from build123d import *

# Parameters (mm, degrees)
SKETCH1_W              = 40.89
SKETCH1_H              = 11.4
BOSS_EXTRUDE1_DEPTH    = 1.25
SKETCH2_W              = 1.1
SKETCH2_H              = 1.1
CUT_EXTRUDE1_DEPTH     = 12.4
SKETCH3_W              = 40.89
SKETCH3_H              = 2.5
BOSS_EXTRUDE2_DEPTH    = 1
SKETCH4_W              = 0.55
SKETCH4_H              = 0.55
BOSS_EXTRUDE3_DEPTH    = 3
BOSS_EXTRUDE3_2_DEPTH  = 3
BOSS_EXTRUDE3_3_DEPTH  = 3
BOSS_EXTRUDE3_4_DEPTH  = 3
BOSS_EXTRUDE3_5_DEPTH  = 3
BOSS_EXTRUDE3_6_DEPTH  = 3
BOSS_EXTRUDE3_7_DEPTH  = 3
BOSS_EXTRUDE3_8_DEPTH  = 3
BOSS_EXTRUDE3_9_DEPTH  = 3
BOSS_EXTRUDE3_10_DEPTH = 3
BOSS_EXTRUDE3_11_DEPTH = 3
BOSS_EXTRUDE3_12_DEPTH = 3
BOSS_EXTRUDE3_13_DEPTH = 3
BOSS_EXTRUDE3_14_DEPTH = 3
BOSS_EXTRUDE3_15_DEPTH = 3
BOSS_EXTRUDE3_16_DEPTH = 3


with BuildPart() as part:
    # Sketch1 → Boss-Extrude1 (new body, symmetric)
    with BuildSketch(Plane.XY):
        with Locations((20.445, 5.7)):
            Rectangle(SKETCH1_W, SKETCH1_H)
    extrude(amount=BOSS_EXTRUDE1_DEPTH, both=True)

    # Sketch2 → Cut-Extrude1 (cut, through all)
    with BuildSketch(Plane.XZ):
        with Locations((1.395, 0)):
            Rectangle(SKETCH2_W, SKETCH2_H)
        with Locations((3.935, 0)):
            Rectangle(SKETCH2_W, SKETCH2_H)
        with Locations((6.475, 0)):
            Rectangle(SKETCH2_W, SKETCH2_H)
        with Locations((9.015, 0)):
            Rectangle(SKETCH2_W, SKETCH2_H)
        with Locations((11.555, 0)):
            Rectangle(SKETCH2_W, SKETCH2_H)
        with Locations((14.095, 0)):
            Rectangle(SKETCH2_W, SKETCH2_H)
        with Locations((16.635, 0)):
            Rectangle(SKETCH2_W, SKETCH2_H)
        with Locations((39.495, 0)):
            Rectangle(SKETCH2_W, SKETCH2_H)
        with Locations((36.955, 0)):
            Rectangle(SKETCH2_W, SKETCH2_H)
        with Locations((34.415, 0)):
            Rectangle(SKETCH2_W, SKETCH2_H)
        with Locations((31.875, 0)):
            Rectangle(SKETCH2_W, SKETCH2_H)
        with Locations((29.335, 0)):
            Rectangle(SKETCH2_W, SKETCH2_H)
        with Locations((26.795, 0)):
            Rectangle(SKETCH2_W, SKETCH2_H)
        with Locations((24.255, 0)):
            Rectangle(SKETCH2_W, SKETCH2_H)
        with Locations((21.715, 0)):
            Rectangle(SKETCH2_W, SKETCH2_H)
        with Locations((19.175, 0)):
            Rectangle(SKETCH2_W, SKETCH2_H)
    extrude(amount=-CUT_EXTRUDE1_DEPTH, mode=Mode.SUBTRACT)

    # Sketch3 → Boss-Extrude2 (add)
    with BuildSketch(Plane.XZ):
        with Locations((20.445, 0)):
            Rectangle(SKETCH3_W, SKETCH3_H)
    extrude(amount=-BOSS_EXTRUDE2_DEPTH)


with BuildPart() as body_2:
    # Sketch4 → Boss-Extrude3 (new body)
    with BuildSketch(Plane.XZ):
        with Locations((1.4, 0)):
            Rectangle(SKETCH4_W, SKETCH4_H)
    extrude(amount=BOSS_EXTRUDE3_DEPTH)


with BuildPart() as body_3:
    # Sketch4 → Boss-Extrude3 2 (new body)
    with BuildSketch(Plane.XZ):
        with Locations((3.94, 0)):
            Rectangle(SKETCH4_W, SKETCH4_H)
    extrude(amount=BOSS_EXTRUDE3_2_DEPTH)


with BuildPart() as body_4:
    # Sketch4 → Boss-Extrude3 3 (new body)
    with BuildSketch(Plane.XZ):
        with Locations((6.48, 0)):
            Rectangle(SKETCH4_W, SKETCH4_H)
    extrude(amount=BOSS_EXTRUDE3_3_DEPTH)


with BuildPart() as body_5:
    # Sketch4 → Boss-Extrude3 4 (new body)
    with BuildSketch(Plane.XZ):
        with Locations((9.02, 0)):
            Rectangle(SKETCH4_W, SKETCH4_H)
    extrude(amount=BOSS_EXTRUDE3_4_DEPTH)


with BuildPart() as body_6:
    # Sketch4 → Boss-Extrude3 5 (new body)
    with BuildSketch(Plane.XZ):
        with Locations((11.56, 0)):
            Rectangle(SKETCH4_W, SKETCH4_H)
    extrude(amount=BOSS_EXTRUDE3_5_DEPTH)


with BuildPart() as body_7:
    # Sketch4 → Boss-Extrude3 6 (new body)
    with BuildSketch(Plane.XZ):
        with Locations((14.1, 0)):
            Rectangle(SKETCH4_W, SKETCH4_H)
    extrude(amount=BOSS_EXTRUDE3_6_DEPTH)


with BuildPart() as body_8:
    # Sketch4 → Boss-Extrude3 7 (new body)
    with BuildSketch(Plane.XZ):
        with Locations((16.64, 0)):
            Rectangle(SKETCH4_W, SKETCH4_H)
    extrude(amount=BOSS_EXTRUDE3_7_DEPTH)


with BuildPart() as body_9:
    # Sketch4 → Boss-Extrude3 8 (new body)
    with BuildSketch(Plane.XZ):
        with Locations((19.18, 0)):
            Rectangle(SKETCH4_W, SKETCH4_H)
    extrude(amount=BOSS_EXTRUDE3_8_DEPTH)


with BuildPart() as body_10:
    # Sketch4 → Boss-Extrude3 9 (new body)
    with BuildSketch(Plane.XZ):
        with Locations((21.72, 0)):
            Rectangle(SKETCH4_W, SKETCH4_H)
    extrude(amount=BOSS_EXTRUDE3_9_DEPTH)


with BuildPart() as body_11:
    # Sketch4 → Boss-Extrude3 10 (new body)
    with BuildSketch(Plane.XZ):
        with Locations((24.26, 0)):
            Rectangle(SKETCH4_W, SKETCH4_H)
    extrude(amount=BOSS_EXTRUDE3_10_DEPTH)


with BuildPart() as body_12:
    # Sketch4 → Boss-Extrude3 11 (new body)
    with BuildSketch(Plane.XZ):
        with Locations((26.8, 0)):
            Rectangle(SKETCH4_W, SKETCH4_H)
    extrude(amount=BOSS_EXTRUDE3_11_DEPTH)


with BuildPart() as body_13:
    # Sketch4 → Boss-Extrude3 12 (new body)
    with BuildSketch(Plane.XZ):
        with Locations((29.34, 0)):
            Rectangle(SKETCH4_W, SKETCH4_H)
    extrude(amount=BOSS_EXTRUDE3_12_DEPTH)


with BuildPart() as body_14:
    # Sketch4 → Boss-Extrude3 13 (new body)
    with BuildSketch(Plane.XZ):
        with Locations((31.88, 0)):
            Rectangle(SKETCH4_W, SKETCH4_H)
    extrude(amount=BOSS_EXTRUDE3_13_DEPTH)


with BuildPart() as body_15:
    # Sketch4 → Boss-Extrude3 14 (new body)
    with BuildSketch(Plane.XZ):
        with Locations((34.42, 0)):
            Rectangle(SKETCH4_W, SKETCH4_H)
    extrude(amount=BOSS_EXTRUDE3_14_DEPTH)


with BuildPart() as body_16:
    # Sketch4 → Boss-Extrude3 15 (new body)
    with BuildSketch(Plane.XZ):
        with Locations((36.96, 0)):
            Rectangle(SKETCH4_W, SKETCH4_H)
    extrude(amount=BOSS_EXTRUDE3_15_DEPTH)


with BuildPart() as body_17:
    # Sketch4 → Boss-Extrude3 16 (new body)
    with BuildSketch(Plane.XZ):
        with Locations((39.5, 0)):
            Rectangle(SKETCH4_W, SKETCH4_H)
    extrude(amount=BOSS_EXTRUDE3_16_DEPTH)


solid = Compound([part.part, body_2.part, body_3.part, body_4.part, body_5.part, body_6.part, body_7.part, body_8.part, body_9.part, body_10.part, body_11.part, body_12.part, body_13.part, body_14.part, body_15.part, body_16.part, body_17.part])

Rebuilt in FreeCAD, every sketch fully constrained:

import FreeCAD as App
import Part
import Sketcher

doc = App.newDocument("Part")
body = doc.addObject("PartDesign::Body", "Body")

sketch1 = body.newObject("Sketcher::SketchObject", "Sketch")
sketch1.AttachmentSupport = (doc.getObject("XY_Plane"), [""])
sketch1.MapMode = "FlatFace"
sketch1.addGeometry(Part.LineSegment(App.Vector(0, 11, 0), App.Vector(0, 0, 0)), False)
sketch1.addGeometry(Part.LineSegment(App.Vector(0, 0, 0), App.Vector(41, 0, 0)), False)
sketch1.addGeometry(Part.LineSegment(App.Vector(41, 0, 0), App.Vector(41, 11, 0)), False)
sketch1.addGeometry(Part.LineSegment(App.Vector(41, 11, 0), App.Vector(0, 11, 0)), False)
sketch1.addConstraint(Sketcher.Constraint("Coincident", 0, 2, 1, 1))
sketch1.addConstraint(Sketcher.Constraint("Coincident", 1, 2, 2, 1))
sketch1.addConstraint(Sketcher.Constraint("Coincident", 2, 2, 3, 1))
sketch1.addConstraint(Sketcher.Constraint("Coincident", 3, 2, 0, 1))
sketch1.addConstraint(Sketcher.Constraint("Vertical", 0))
sketch1.addConstraint(Sketcher.Constraint("Horizontal", 1))
sketch1.addConstraint(Sketcher.Constraint("Vertical", 2))
sketch1.addConstraint(Sketcher.Constraint("Horizontal", 3))
sketch1.addConstraint(Sketcher.Constraint("Coincident", 0, 2, -1, 1))
sketch1.addConstraint(Sketcher.Constraint("DistanceY", 0, 2, 0, 1, 11.4))
sketch1.addConstraint(Sketcher.Constraint("DistanceX", 1, 1, 1, 2, 40.89))
pad1 = body.newObject("PartDesign::Pad", "Pad")
pad1.Profile = sketch1
pad1.Length = 2.5
pad1.Midplane = True

sketch2 = body.newObject("Sketcher::SketchObject", "Sketch001")
sketch2.AttachmentSupport = (doc.getObject("XZ_Plane"), [""])
sketch2.MapMode = "FlatFace"
sketch2.addGeometry(Part.LineSegment(App.Vector(0.8, 0.6, 0), App.Vector(0.8, -0.6, 0)), False)
sketch2.addGeometry(Part.LineSegment(App.Vector(0.8, -0.6, 0), App.Vector(1.9, -0.6, 0)), False)
sketch2.addGeometry(Part.LineSegment(App.Vector(1.9, -0.6, 0), App.Vector(1.9, 0.6, 0)), False)
sketch2.addGeometry(Part.LineSegment(App.Vector(1.9, 0.6, 0), App.Vector(0.8, 0.6, 0)), False)
sketch2.addGeometry(Part.LineSegment(App.Vector(3.4, 0.6, 0), App.Vector(3.4, -0.6, 0)), False)
sketch2.addGeometry(Part.LineSegment(App.Vector(3.4, -0.6, 0), App.Vector(4.5, -0.6, 0)), False)
sketch2.addGeometry(Part.LineSegment(App.Vector(4.5, -0.6, 0), App.Vector(4.5, 0.6, 0)), False)
sketch2.addGeometry(Part.LineSegment(App.Vector(4.5, 0.6, 0), App.Vector(3.4, 0.6, 0)), False)
sketch2.addGeometry(Part.LineSegment(App.Vector(5.9, 0.6, 0), App.Vector(5.9, -0.6, 0)), False)
sketch2.addGeometry(Part.LineSegment(App.Vector(5.9, -0.6, 0), App.Vector(7, -0.6, 0)), False)
sketch2.addGeometry(Part.LineSegment(App.Vector(7, -0.6, 0), App.Vector(7, 0.6, 0)), False)
sketch2.addGeometry(Part.LineSegment(App.Vector(7, 0.6, 0), App.Vector(5.9, 0.6, 0)), False)
sketch2.addGeometry(Part.LineSegment(App.Vector(8.5, 0.6, 0), App.Vector(8.5, -0.6, 0)), False)
sketch2.addGeometry(Part.LineSegment(App.Vector(8.5, -0.6, 0), App.Vector(9.6, -0.6, 0)), False)
sketch2.addGeometry(Part.LineSegment(App.Vector(9.6, -0.6, 0), App.Vector(9.6, 0.6, 0)), False)
sketch2.addGeometry(Part.LineSegment(App.Vector(9.6, 0.6, 0), App.Vector(8.5, 0.6, 0)), False)
sketch2.addGeometry(Part.LineSegment(App.Vector(11, 0.6, 0), App.Vector(11, -0.6, 0)), False)
sketch2.addGeometry(Part.LineSegment(App.Vector(11, -0.6, 0), App.Vector(12.1, -0.6, 0)), False)
sketch2.addGeometry(Part.LineSegment(App.Vector(12.1, -0.6, 0), App.Vector(12.1, 0.6, 0)), False)
sketch2.addGeometry(Part.LineSegment(App.Vector(12.1, 0.6, 0), App.Vector(11, 0.6, 0)), False)
sketch2.addGeometry(Part.LineSegment(App.Vector(13.5, 0.6, 0), App.Vector(13.5, -0.6, 0)), False)
sketch2.addGeometry(Part.LineSegment(App.Vector(13.5, -0.6, 0), App.Vector(14.6, -0.6, 0)), False)
sketch2.addGeometry(Part.LineSegment(App.Vector(14.6, -0.6, 0), App.Vector(14.6, 0.6, 0)), False)
sketch2.addGeometry(Part.LineSegment(App.Vector(14.6, 0.6, 0), App.Vector(13.5, 0.6, 0)), False)
sketch2.addGeometry(Part.LineSegment(App.Vector(16.1, 0.6, 0), App.Vector(16.1, -0.6, 0)), False)
sketch2.addGeometry(Part.LineSegment(App.Vector(16.1, -0.6, 0), App.Vector(17.2, -0.6, 0)), False)
sketch2.addGeometry(Part.LineSegment(App.Vector(17.2, -0.6, 0), App.Vector(17.2, 0.6, 0)), False)
sketch2.addGeometry(Part.LineSegment(App.Vector(17.2, 0.6, 0), App.Vector(16.1, 0.6, 0)), False)
sketch2.addGeometry(Part.LineSegment(App.Vector(38.9, 0.6, 0), App.Vector(38.9, -0.6, 0)), False)
sketch2.addGeometry(Part.LineSegment(App.Vector(38.9, -0.6, 0), App.Vector(40, -0.6, 0)), False)
sketch2.addGeometry(Part.LineSegment(App.Vector(40, -0.6, 0), App.Vector(40, 0.6, 0)), False)
sketch2.addGeometry(Part.LineSegment(App.Vector(40, 0.6, 0), App.Vector(38.9, 0.6, 0)), False)
sketch2.addGeometry(Part.LineSegment(App.Vector(36.4, 0.6, 0), App.Vector(36.4, -0.6, 0)), False)
sketch2.addGeometry(Part.LineSegment(App.Vector(36.4, -0.6, 0), App.Vector(37.5, -0.6, 0)), False)
sketch2.addGeometry(Part.LineSegment(App.Vector(37.5, -0.6, 0), App.Vector(37.5, 0.6, 0)), False)
sketch2.addGeometry(Part.LineSegment(App.Vector(37.5, 0.6, 0), App.Vector(36.4, 0.6, 0)), False)
sketch2.addGeometry(Part.LineSegment(App.Vector(33.9, 0.6, 0), App.Vector(33.9, -0.6, 0)), False)
sketch2.addGeometry(Part.LineSegment(App.Vector(33.9, -0.6, 0), App.Vector(35, -0.6, 0)), False)
sketch2.addGeometry(Part.LineSegment(App.Vector(35, -0.6, 0), App.Vector(35, 0.6, 0)), False)
sketch2.addGeometry(Part.LineSegment(App.Vector(35, 0.6, 0), App.Vector(33.9, 0.6, 0)), False)
sketch2.addGeometry(Part.LineSegment(App.Vector(31.3, 0.6, 0), App.Vector(31.3, -0.6, 0)), False)
sketch2.addGeometry(Part.LineSegment(App.Vector(31.3, -0.6, 0), App.Vector(32.4, -0.6, 0)), False)
sketch2.addGeometry(Part.LineSegment(App.Vector(32.4, -0.6, 0), App.Vector(32.4, 0.6, 0)), False)
sketch2.addGeometry(Part.LineSegment(App.Vector(32.4, 0.6, 0), App.Vector(31.3, 0.6, 0)), False)
sketch2.addGeometry(Part.LineSegment(App.Vector(28.8, 0.6, 0), App.Vector(28.8, -0.6, 0)), False)
sketch2.addGeometry(Part.LineSegment(App.Vector(28.8, -0.6, 0), App.Vector(29.9, -0.6, 0)), False)
sketch2.addGeometry(Part.LineSegment(App.Vector(29.9, -0.6, 0), App.Vector(29.9, 0.6, 0)), False)
sketch2.addGeometry(Part.LineSegment(App.Vector(29.9, 0.6, 0), App.Vector(28.8, 0.6, 0)), False)
sketch2.addGeometry(Part.LineSegment(App.Vector(26.2, 0.6, 0), App.Vector(26.2, -0.6, 0)), False)
sketch2.addGeometry(Part.LineSegment(App.Vector(26.2, -0.6, 0), App.Vector(27.3, -0.6, 0)), False)
sketch2.addGeometry(Part.LineSegment(App.Vector(27.3, -0.6, 0), App.Vector(27.3, 0.6, 0)), False)
sketch2.addGeometry(Part.LineSegment(App.Vector(27.3, 0.6, 0), App.Vector(26.2, 0.6, 0)), False)
sketch2.addGeometry(Part.LineSegment(App.Vector(23.7, 0.6, 0), App.Vector(23.7, -0.6, 0)), False)
sketch2.addGeometry(Part.LineSegment(App.Vector(23.7, -0.6, 0), App.Vector(24.8, -0.6, 0)), False)
sketch2.addGeometry(Part.LineSegment(App.Vector(24.8, -0.6, 0), App.Vector(24.8, 0.6, 0)), False)
sketch2.addGeometry(Part.LineSegment(App.Vector(24.8, 0.6, 0), App.Vector(23.7, 0.6, 0)), False)
sketch2.addGeometry(Part.LineSegment(App.Vector(21.2, 0.6, 0), App.Vector(21.2, -0.6, 0)), False)
sketch2.addGeometry(Part.LineSegment(App.Vector(21.2, -0.6, 0), App.Vector(22.3, -0.6, 0)), False)
sketch2.addGeometry(Part.LineSegment(App.Vector(22.3, -0.6, 0), App.Vector(22.3, 0.6, 0)), False)
sketch2.addGeometry(Part.LineSegment(App.Vector(22.3, 0.6, 0), App.Vector(21.2, 0.6, 0)), False)
sketch2.addGeometry(Part.LineSegment(App.Vector(18.6, 0.6, 0), App.Vector(18.6, -0.6, 0)), False)
sketch2.addGeometry(Part.LineSegment(App.Vector(18.6, -0.6, 0), App.Vector(19.7, -0.6, 0)), False)
sketch2.addGeometry(Part.LineSegment(App.Vector(19.7, -0.6, 0), App.Vector(19.7, 0.6, 0)), False)
sketch2.addGeometry(Part.LineSegment(App.Vector(19.7, 0.6, 0), App.Vector(18.6, 0.6, 0)), False)
sketch2.addConstraint(Sketcher.Constraint("Coincident", 0, 2, 1, 1))
sketch2.addConstraint(Sketcher.Constraint("Coincident", 1, 2, 2, 1))
sketch2.addConstraint(Sketcher.Constraint("Coincident", 2, 2, 3, 1))
sketch2.addConstraint(Sketcher.Constraint("Coincident", 3, 2, 0, 1))
sketch2.addConstraint(Sketcher.Constraint("Coincident", 4, 2, 5, 1))
sketch2.addConstraint(Sketcher.Constraint("Coincident", 5, 2, 6, 1))
sketch2.addConstraint(Sketcher.Constraint("Coincident", 6, 2, 7, 1))
sketch2.addConstraint(Sketcher.Constraint("Coincident", 7, 2, 4, 1))
sketch2.addConstraint(Sketcher.Constraint("Coincident", 8, 2, 9, 1))
sketch2.addConstraint(Sketcher.Constraint("Coincident", 9, 2, 10, 1))
sketch2.addConstraint(Sketcher.Constraint("Coincident", 10, 2, 11, 1))
sketch2.addConstraint(Sketcher.Constraint("Coincident", 11, 2, 8, 1))
sketch2.addConstraint(Sketcher.Constraint("Coincident", 12, 2, 13, 1))
sketch2.addConstraint(Sketcher.Constraint("Coincident", 13, 2, 14, 1))
sketch2.addConstraint(Sketcher.Constraint("Coincident", 14, 2, 15, 1))
sketch2.addConstraint(Sketcher.Constraint("Coincident", 15, 2, 12, 1))
sketch2.addConstraint(Sketcher.Constraint("Coincident", 16, 2, 17, 1))
sketch2.addConstraint(Sketcher.Constraint("Coincident", 17, 2, 18, 1))
sketch2.addConstraint(Sketcher.Constraint("Coincident", 18, 2, 19, 1))
sketch2.addConstraint(Sketcher.Constraint("Coincident", 19, 2, 16, 1))
sketch2.addConstraint(Sketcher.Constraint("Coincident", 20, 2, 21, 1))
sketch2.addConstraint(Sketcher.Constraint("Coincident", 21, 2, 22, 1))
sketch2.addConstraint(Sketcher.Constraint("Coincident", 22, 2, 23, 1))
sketch2.addConstraint(Sketcher.Constraint("Coincident", 23, 2, 20, 1))
sketch2.addConstraint(Sketcher.Constraint("Coincident", 24, 2, 25, 1))
sketch2.addConstraint(Sketcher.Constraint("Coincident", 25, 2, 26, 1))
sketch2.addConstraint(Sketcher.Constraint("Coincident", 26, 2, 27, 1))
sketch2.addConstraint(Sketcher.Constraint("Coincident", 27, 2, 24, 1))
sketch2.addConstraint(Sketcher.Constraint("Coincident", 28, 2, 29, 1))
sketch2.addConstraint(Sketcher.Constraint("Coincident", 29, 2, 30, 1))
sketch2.addConstraint(Sketcher.Constraint("Coincident", 30, 2, 31, 1))
sketch2.addConstraint(Sketcher.Constraint("Coincident", 31, 2, 28, 1))
sketch2.addConstraint(Sketcher.Constraint("Coincident", 32, 2, 33, 1))
sketch2.addConstraint(Sketcher.Constraint("Coincident", 33, 2, 34, 1))
sketch2.addConstraint(Sketcher.Constraint("Coincident", 34, 2, 35, 1))
sketch2.addConstraint(Sketcher.Constraint("Coincident", 35, 2, 32, 1))
sketch2.addConstraint(Sketcher.Constraint("Coincident", 36, 2, 37, 1))
sketch2.addConstraint(Sketcher.Constraint("Coincident", 37, 2, 38, 1))
sketch2.addConstraint(Sketcher.Constraint("Coincident", 38, 2, 39, 1))
sketch2.addConstraint(Sketcher.Constraint("Coincident", 39, 2, 36, 1))
sketch2.addConstraint(Sketcher.Constraint("Coincident", 40, 2, 41, 1))
sketch2.addConstraint(Sketcher.Constraint("Coincident", 41, 2, 42, 1))
sketch2.addConstraint(Sketcher.Constraint("Coincident", 42, 2, 43, 1))
sketch2.addConstraint(Sketcher.Constraint("Coincident", 43, 2, 40, 1))
sketch2.addConstraint(Sketcher.Constraint("Coincident", 44, 2, 45, 1))
sketch2.addConstraint(Sketcher.Constraint("Coincident", 45, 2, 46, 1))
sketch2.addConstraint(Sketcher.Constraint("Coincident", 46, 2, 47, 1))
sketch2.addConstraint(Sketcher.Constraint("Coincident", 47, 2, 44, 1))
sketch2.addConstraint(Sketcher.Constraint("Coincident", 48, 2, 49, 1))
sketch2.addConstraint(Sketcher.Constraint("Coincident", 49, 2, 50, 1))
sketch2.addConstraint(Sketcher.Constraint("Coincident", 50, 2, 51, 1))
sketch2.addConstraint(Sketcher.Constraint("Coincident", 51, 2, 48, 1))
sketch2.addConstraint(Sketcher.Constraint("Coincident", 52, 2, 53, 1))
sketch2.addConstraint(Sketcher.Constraint("Coincident", 53, 2, 54, 1))
sketch2.addConstraint(Sketcher.Constraint("Coincident", 54, 2, 55, 1))
sketch2.addConstraint(Sketcher.Constraint("Coincident", 55, 2, 52, 1))
sketch2.addConstraint(Sketcher.Constraint("Coincident", 56, 2, 57, 1))
sketch2.addConstraint(Sketcher.Constraint("Coincident", 57, 2, 58, 1))
sketch2.addConstraint(Sketcher.Constraint("Coincident", 58, 2, 59, 1))
sketch2.addConstraint(Sketcher.Constraint("Coincident", 59, 2, 56, 1))
sketch2.addConstraint(Sketcher.Constraint("Coincident", 60, 2, 61, 1))
sketch2.addConstraint(Sketcher.Constraint("Coincident", 61, 2, 62, 1))
sketch2.addConstraint(Sketcher.Constraint("Coincident", 62, 2, 63, 1))
sketch2.addConstraint(Sketcher.Constraint("Coincident", 63, 2, 60, 1))
sketch2.addConstraint(Sketcher.Constraint("Vertical", 0))
sketch2.addConstraint(Sketcher.Constraint("Horizontal", 1))
sketch2.addConstraint(Sketcher.Constraint("Vertical", 2))
sketch2.addConstraint(Sketcher.Constraint("Horizontal", 3))
sketch2.addConstraint(Sketcher.Constraint("Vertical", 4))
sketch2.addConstraint(Sketcher.Constraint("Horizontal", 5))
sketch2.addConstraint(Sketcher.Constraint("Vertical", 6))
sketch2.addConstraint(Sketcher.Constraint("Horizontal", 7))
sketch2.addConstraint(Sketcher.Constraint("Vertical", 8))
sketch2.addConstraint(Sketcher.Constraint("Horizontal", 9))
sketch2.addConstraint(Sketcher.Constraint("Vertical", 10))
sketch2.addConstraint(Sketcher.Constraint("Horizontal", 11))
sketch2.addConstraint(Sketcher.Constraint("Vertical", 12))
sketch2.addConstraint(Sketcher.Constraint("Horizontal", 13))
sketch2.addConstraint(Sketcher.Constraint("Vertical", 14))
sketch2.addConstraint(Sketcher.Constraint("Horizontal", 15))
sketch2.addConstraint(Sketcher.Constraint("Vertical", 16))
sketch2.addConstraint(Sketcher.Constraint("Horizontal", 17))
sketch2.addConstraint(Sketcher.Constraint("Vertical", 18))
sketch2.addConstraint(Sketcher.Constraint("Horizontal", 19))
sketch2.addConstraint(Sketcher.Constraint("Vertical", 20))
sketch2.addConstraint(Sketcher.Constraint("Horizontal", 21))
sketch2.addConstraint(Sketcher.Constraint("Vertical", 22))
sketch2.addConstraint(Sketcher.Constraint("Horizontal", 23))
sketch2.addConstraint(Sketcher.Constraint("Vertical", 24))
sketch2.addConstraint(Sketcher.Constraint("Horizontal", 25))
sketch2.addConstraint(Sketcher.Constraint("Vertical", 26))
sketch2.addConstraint(Sketcher.Constraint("Horizontal", 27))
sketch2.addConstraint(Sketcher.Constraint("Vertical", 28))
sketch2.addConstraint(Sketcher.Constraint("Horizontal", 29))
sketch2.addConstraint(Sketcher.Constraint("Vertical", 30))
sketch2.addConstraint(Sketcher.Constraint("Horizontal", 31))
sketch2.addConstraint(Sketcher.Constraint("Vertical", 32))
sketch2.addConstraint(Sketcher.Constraint("Horizontal", 33))
sketch2.addConstraint(Sketcher.Constraint("Vertical", 34))
sketch2.addConstraint(Sketcher.Constraint("Horizontal", 35))
sketch2.addConstraint(Sketcher.Constraint("Vertical", 36))
sketch2.addConstraint(Sketcher.Constraint("Horizontal", 37))
sketch2.addConstraint(Sketcher.Constraint("Vertical", 38))
sketch2.addConstraint(Sketcher.Constraint("Horizontal", 39))
sketch2.addConstraint(Sketcher.Constraint("Vertical", 40))
sketch2.addConstraint(Sketcher.Constraint("Horizontal", 41))
sketch2.addConstraint(Sketcher.Constraint("Vertical", 42))
sketch2.addConstraint(Sketcher.Constraint("Horizontal", 43))
sketch2.addConstraint(Sketcher.Constraint("Vertical", 44))
sketch2.addConstraint(Sketcher.Constraint("Horizontal", 45))
sketch2.addConstraint(Sketcher.Constraint("Vertical", 46))
sketch2.addConstraint(Sketcher.Constraint("Horizontal", 47))
sketch2.addConstraint(Sketcher.Constraint("Vertical", 48))
sketch2.addConstraint(Sketcher.Constraint("Horizontal", 49))
sketch2.addConstraint(Sketcher.Constraint("Vertical", 50))
sketch2.addConstraint(Sketcher.Constraint("Horizontal", 51))
sketch2.addConstraint(Sketcher.Constraint("Vertical", 52))
sketch2.addConstraint(Sketcher.Constraint("Horizontal", 53))
sketch2.addConstraint(Sketcher.Constraint("Vertical", 54))
sketch2.addConstraint(Sketcher.Constraint("Horizontal", 55))
sketch2.addConstraint(Sketcher.Constraint("Vertical", 56))
sketch2.addConstraint(Sketcher.Constraint("Horizontal", 57))
sketch2.addConstraint(Sketcher.Constraint("Vertical", 58))
sketch2.addConstraint(Sketcher.Constraint("Horizontal", 59))
sketch2.addConstraint(Sketcher.Constraint("Vertical", 60))
sketch2.addConstraint(Sketcher.Constraint("Horizontal", 61))
sketch2.addConstraint(Sketcher.Constraint("Vertical", 62))
sketch2.addConstraint(Sketcher.Constraint("Horizontal", 63))
sketch2.addConstraint(Sketcher.Constraint("Horizontal", 1, 2, 4, 2))
sketch2.addConstraint(Sketcher.Constraint("Horizontal", 3, 2, 6, 2))
sketch2.addConstraint(Sketcher.Constraint("Horizontal", 5, 2, 8, 2))
sketch2.addConstraint(Sketcher.Constraint("Horizontal", 7, 2, 10, 2))
sketch2.addConstraint(Sketcher.Constraint("Horizontal", 9, 2, 12, 2))
sketch2.addConstraint(Sketcher.Constraint("Horizontal", 11, 2, 14, 2))
sketch2.addConstraint(Sketcher.Constraint("Horizontal", 13, 2, 16, 2))
sketch2.addConstraint(Sketcher.Constraint("Horizontal", 15, 2, 18, 2))
sketch2.addConstraint(Sketcher.Constraint("Horizontal", 17, 2, 20, 2))
sketch2.addConstraint(Sketcher.Constraint("Horizontal", 19, 2, 22, 2))
sketch2.addConstraint(Sketcher.Constraint("Horizontal", 21, 2, 24, 2))
sketch2.addConstraint(Sketcher.Constraint("Horizontal", 23, 2, 26, 2))
sketch2.addConstraint(Sketcher.Constraint("Horizontal", 25, 2, 28, 2))
sketch2.addConstraint(Sketcher.Constraint("Horizontal", 27, 2, 30, 2))
sketch2.addConstraint(Sketcher.Constraint("Horizontal", 29, 2, 32, 2))
sketch2.addConstraint(Sketcher.Constraint("Horizontal", 31, 2, 34, 2))
sketch2.addConstraint(Sketcher.Constraint("Horizontal", 33, 2, 36, 2))
sketch2.addConstraint(Sketcher.Constraint("Horizontal", 35, 2, 38, 2))
sketch2.addConstraint(Sketcher.Constraint("Horizontal", 37, 2, 40, 2))
sketch2.addConstraint(Sketcher.Constraint("Horizontal", 39, 2, 42, 2))
sketch2.addConstraint(Sketcher.Constraint("Horizontal", 41, 2, 44, 2))
sketch2.addConstraint(Sketcher.Constraint("Horizontal", 43, 2, 46, 2))
sketch2.addConstraint(Sketcher.Constraint("Horizontal", 45, 2, 48, 2))
sketch2.addConstraint(Sketcher.Constraint("Horizontal", 47, 2, 50, 2))
sketch2.addConstraint(Sketcher.Constraint("Horizontal", 49, 2, 52, 2))
sketch2.addConstraint(Sketcher.Constraint("Horizontal", 51, 2, 54, 2))
sketch2.addConstraint(Sketcher.Constraint("Horizontal", 53, 2, 56, 2))
sketch2.addConstraint(Sketcher.Constraint("Horizontal", 55, 2, 58, 2))
sketch2.addConstraint(Sketcher.Constraint("Horizontal", 57, 2, 60, 2))
sketch2.addConstraint(Sketcher.Constraint("Horizontal", 59, 2, 62, 2))
sketch2.addConstraint(Sketcher.Constraint("Equal", 3, 5))
sketch2.addConstraint(Sketcher.Constraint("Equal", 7, 9))
sketch2.addConstraint(Sketcher.Constraint("Equal", 11, 13))
sketch2.addConstraint(Sketcher.Constraint("Equal", 15, 17))
sketch2.addConstraint(Sketcher.Constraint("Equal", 19, 21))
sketch2.addConstraint(Sketcher.Constraint("Equal", 23, 25))
sketch2.addConstraint(Sketcher.Constraint("Equal", 27, 29))
sketch2.addConstraint(Sketcher.Constraint("Equal", 31, 33))
sketch2.addConstraint(Sketcher.Constraint("Equal", 35, 37))
sketch2.addConstraint(Sketcher.Constraint("Equal", 39, 41))
sketch2.addConstraint(Sketcher.Constraint("Equal", 43, 45))
sketch2.addConstraint(Sketcher.Constraint("Equal", 47, 49))
sketch2.addConstraint(Sketcher.Constraint("Equal", 51, 53))
sketch2.addConstraint(Sketcher.Constraint("Equal", 55, 57))
sketch2.addConstraint(Sketcher.Constraint("Equal", 59, 61))
sketch2.addConstraint(Sketcher.Constraint("Equal", 63, 0))
sketch2.addConstraint(Sketcher.Constraint("DistanceX", 1, 1, 1, 2, 1.1))
sketch2.addConstraint(Sketcher.Constraint("DistanceY", 0, 2, -1, 1, 0.55))
sketch2.addConstraint(Sketcher.Constraint("DistanceX", -1, 1, 0, 2, 0.845))
sketch2.addConstraint(Sketcher.Constraint("DistanceX", -1, 1, 4, 2, 3.385))
sketch2.addConstraint(Sketcher.Constraint("DistanceX", -1, 1, 8, 2, 5.925))
sketch2.addConstraint(Sketcher.Constraint("DistanceX", -1, 1, 12, 2, 8.465))
sketch2.addConstraint(Sketcher.Constraint("DistanceX", -1, 1, 16, 2, 11.005))
sketch2.addConstraint(Sketcher.Constraint("DistanceX", -1, 1, 20, 2, 13.545))
sketch2.addConstraint(Sketcher.Constraint("DistanceX", -1, 1, 24, 2, 16.085))
sketch2.addConstraint(Sketcher.Constraint("DistanceX", -1, 1, 28, 2, 38.945))
sketch2.addConstraint(Sketcher.Constraint("DistanceX", -1, 1, 32, 2, 36.405))
sketch2.addConstraint(Sketcher.Constraint("DistanceX", -1, 1, 36, 2, 33.865))
sketch2.addConstraint(Sketcher.Constraint("DistanceX", -1, 1, 40, 2, 31.325))
sketch2.addConstraint(Sketcher.Constraint("DistanceX", -1, 1, 44, 2, 28.785))
sketch2.addConstraint(Sketcher.Constraint("DistanceX", -1, 1, 48, 2, 26.245))
sketch2.addConstraint(Sketcher.Constraint("DistanceX", -1, 1, 52, 2, 23.705))
sketch2.addConstraint(Sketcher.Constraint("DistanceX", -1, 1, 56, 2, 21.165))
sketch2.addConstraint(Sketcher.Constraint("DistanceX", -1, 1, 60, 2, 18.625))
pocket1 = body.newObject("PartDesign::Pocket", "Pocket")
pocket1.Profile = sketch2
pocket1.Type = "ThroughAll"

sketch3 = body.newObject("Sketcher::SketchObject", "Sketch002")
sketch3.AttachmentSupport = (doc.getObject("XZ_Plane"), [""])
sketch3.MapMode = "FlatFace"
sketch3.addGeometry(Part.LineSegment(App.Vector(0, 1.2, 0), App.Vector(0, -1.2, 0)), False)
sketch3.addGeometry(Part.LineSegment(App.Vector(0, -1.2, 0), App.Vector(40.9, -1.2, 0)), False)
sketch3.addGeometry(Part.LineSegment(App.Vector(40.9, -1.2, 0), App.Vector(40.9, 1.2, 0)), False)
sketch3.addGeometry(Part.LineSegment(App.Vector(40.9, 1.2, 0), App.Vector(0, 1.2, 0)), False)
sketch3.addConstraint(Sketcher.Constraint("Coincident", 0, 2, 1, 1))
sketch3.addConstraint(Sketcher.Constraint("Coincident", 1, 2, 2, 1))
sketch3.addConstraint(Sketcher.Constraint("Coincident", 2, 2, 3, 1))
sketch3.addConstraint(Sketcher.Constraint("Coincident", 3, 2, 0, 1))
sketch3.addConstraint(Sketcher.Constraint("Vertical", 0))
sketch3.addConstraint(Sketcher.Constraint("Horizontal", 1))
sketch3.addConstraint(Sketcher.Constraint("Vertical", 2))
sketch3.addConstraint(Sketcher.Constraint("Horizontal", 3))
sketch3.addConstraint(Sketcher.Constraint("Symmetric", 0, 2, 3, 2, -1, 1))
sketch3.addConstraint(Sketcher.Constraint("DistanceY", 0, 2, 0, 1, 2.5))
sketch3.addConstraint(Sketcher.Constraint("DistanceX", 1, 1, 1, 2, 40.89))
pad2 = body.newObject("PartDesign::Pad", "Pad001")
pad2.Profile = sketch3
pad2.Length = 1
pad2.Reversed = True
body2 = doc.addObject("PartDesign::Body", "Body001")

sketch4 = body2.newObject("Sketcher::SketchObject", "Sketch003")
sketch4.AttachmentSupport = (doc.getObject("XZ_Plane001"), [""])
sketch4.MapMode = "FlatFace"
sketch4.addGeometry(Part.LineSegment(App.Vector(1.1, 0.3, 0), App.Vector(1.1, -0.3, 0)), False)
sketch4.addGeometry(Part.LineSegment(App.Vector(1.1, -0.3, 0), App.Vector(1.7, -0.3, 0)), False)
sketch4.addGeometry(Part.LineSegment(App.Vector(1.7, -0.3, 0), App.Vector(1.7, 0.3, 0)), False)
sketch4.addGeometry(Part.LineSegment(App.Vector(1.7, 0.3, 0), App.Vector(1.1, 0.3, 0)), False)
sketch4.addConstraint(Sketcher.Constraint("Coincident", 0, 2, 1, 1))
sketch4.addConstraint(Sketcher.Constraint("Coincident", 1, 2, 2, 1))
sketch4.addConstraint(Sketcher.Constraint("Coincident", 2, 2, 3, 1))
sketch4.addConstraint(Sketcher.Constraint("Coincident", 3, 2, 0, 1))
sketch4.addConstraint(Sketcher.Constraint("Vertical", 0))
sketch4.addConstraint(Sketcher.Constraint("Horizontal", 1))
sketch4.addConstraint(Sketcher.Constraint("Vertical", 2))
sketch4.addConstraint(Sketcher.Constraint("Horizontal", 3))
sketch4.addConstraint(Sketcher.Constraint("Equal", 3, 0))
sketch4.addConstraint(Sketcher.Constraint("DistanceX", 1, 1, 1, 2, 0.55))
sketch4.addConstraint(Sketcher.Constraint("DistanceX", -1, 1, 0, 2, 1.125))
sketch4.addConstraint(Sketcher.Constraint("DistanceY", 0, 2, -1, 1, 0.275))
pad3 = body2.newObject("PartDesign::Pad", "Pad002")
pad3.Profile = sketch4
pad3.Length = 3
body3 = doc.addObject("PartDesign::Body", "Body002")

sketch5 = body3.newObject("Sketcher::SketchObject", "Sketch004")
sketch5.AttachmentSupport = (doc.getObject("XZ_Plane002"), [""])
sketch5.MapMode = "FlatFace"
sketch5.addGeometry(Part.LineSegment(App.Vector(3.7, 0.3, 0), App.Vector(3.7, -0.3, 0)), False)
sketch5.addGeometry(Part.LineSegment(App.Vector(3.7, -0.3, 0), App.Vector(4.2, -0.3, 0)), False)
sketch5.addGeometry(Part.LineSegment(App.Vector(4.2, -0.3, 0), App.Vector(4.2, 0.3, 0)), False)
sketch5.addGeometry(Part.LineSegment(App.Vector(4.2, 0.3, 0), App.Vector(3.7, 0.3, 0)), False)
sketch5.addConstraint(Sketcher.Constraint("Coincident", 0, 2, 1, 1))
sketch5.addConstraint(Sketcher.Constraint("Coincident", 1, 2, 2, 1))
sketch5.addConstraint(Sketcher.Constraint("Coincident", 2, 2, 3, 1))
sketch5.addConstraint(Sketcher.Constraint("Coincident", 3, 2, 0, 1))
sketch5.addConstraint(Sketcher.Constraint("Vertical", 0))
sketch5.addConstraint(Sketcher.Constraint("Horizontal", 1))
sketch5.addConstraint(Sketcher.Constraint("Vertical", 2))
sketch5.addConstraint(Sketcher.Constraint("Horizontal", 3))
sketch5.addConstraint(Sketcher.Constraint("Equal", 3, 0))
sketch5.addConstraint(Sketcher.Constraint("DistanceX", 1, 1, 1, 2, 0.55))
sketch5.addConstraint(Sketcher.Constraint("DistanceX", -1, 1, 0, 2, 3.665))
sketch5.addConstraint(Sketcher.Constraint("DistanceY", 0, 2, -1, 1, 0.275))
pad4 = body3.newObject("PartDesign::Pad", "Pad003")
pad4.Profile = sketch5
pad4.Length = 3
body4 = doc.addObject("PartDesign::Body", "Body003")

sketch6 = body4.newObject("Sketcher::SketchObject", "Sketch005")
sketch6.AttachmentSupport = (doc.getObject("XZ_Plane003"), [""])
sketch6.MapMode = "FlatFace"
sketch6.addGeometry(Part.LineSegment(App.Vector(6.2, 0.3, 0), App.Vector(6.2, -0.3, 0)), False)
sketch6.addGeometry(Part.LineSegment(App.Vector(6.2, -0.3, 0), App.Vector(6.8, -0.3, 0)), False)
sketch6.addGeometry(Part.LineSegment(App.Vector(6.8, -0.3, 0), App.Vector(6.8, 0.3, 0)), False)
sketch6.addGeometry(Part.LineSegment(App.Vector(6.8, 0.3, 0), App.Vector(6.2, 0.3, 0)), False)
sketch6.addConstraint(Sketcher.Constraint("Coincident", 0, 2, 1, 1))
sketch6.addConstraint(Sketcher.Constraint("Coincident", 1, 2, 2, 1))
sketch6.addConstraint(Sketcher.Constraint("Coincident", 2, 2, 3, 1))
sketch6.addConstraint(Sketcher.Constraint("Coincident", 3, 2, 0, 1))
sketch6.addConstraint(Sketcher.Constraint("Vertical", 0))
sketch6.addConstraint(Sketcher.Constraint("Horizontal", 1))
sketch6.addConstraint(Sketcher.Constraint("Vertical", 2))
sketch6.addConstraint(Sketcher.Constraint("Horizontal", 3))
sketch6.addConstraint(Sketcher.Constraint("Equal", 3, 0))
sketch6.addConstraint(Sketcher.Constraint("DistanceX", 1, 1, 1, 2, 0.55))
sketch6.addConstraint(Sketcher.Constraint("DistanceX", -1, 1, 0, 2, 6.205))
sketch6.addConstraint(Sketcher.Constraint("DistanceY", 0, 2, -1, 1, 0.275))
pad5 = body4.newObject("PartDesign::Pad", "Pad004")
pad5.Profile = sketch6
pad5.Length = 3
body5 = doc.addObject("PartDesign::Body", "Body004")

sketch7 = body5.newObject("Sketcher::SketchObject", "Sketch006")
sketch7.AttachmentSupport = (doc.getObject("XZ_Plane004"), [""])
sketch7.MapMode = "FlatFace"
sketch7.addGeometry(Part.LineSegment(App.Vector(8.7, 0.3, 0), App.Vector(8.7, -0.3, 0)), False)
sketch7.addGeometry(Part.LineSegment(App.Vector(8.7, -0.3, 0), App.Vector(9.3, -0.3, 0)), False)
sketch7.addGeometry(Part.LineSegment(App.Vector(9.3, -0.3, 0), App.Vector(9.3, 0.3, 0)), False)
sketch7.addGeometry(Part.LineSegment(App.Vector(9.3, 0.3, 0), App.Vector(8.7, 0.3, 0)), False)
sketch7.addConstraint(Sketcher.Constraint("Coincident", 0, 2, 1, 1))
sketch7.addConstraint(Sketcher.Constraint("Coincident", 1, 2, 2, 1))
sketch7.addConstraint(Sketcher.Constraint("Coincident", 2, 2, 3, 1))
sketch7.addConstraint(Sketcher.Constraint("Coincident", 3, 2, 0, 1))
sketch7.addConstraint(Sketcher.Constraint("Vertical", 0))
sketch7.addConstraint(Sketcher.Constraint("Horizontal", 1))
sketch7.addConstraint(Sketcher.Constraint("Vertical", 2))
sketch7.addConstraint(Sketcher.Constraint("Horizontal", 3))
sketch7.addConstraint(Sketcher.Constraint("Equal", 3, 0))
sketch7.addConstraint(Sketcher.Constraint("DistanceX", 1, 1, 1, 2, 0.55))
sketch7.addConstraint(Sketcher.Constraint("DistanceX", -1, 1, 0, 2, 8.745))
sketch7.addConstraint(Sketcher.Constraint("DistanceY", 0, 2, -1, 1, 0.275))
pad6 = body5.newObject("PartDesign::Pad", "Pad005")
pad6.Profile = sketch7
pad6.Length = 3
body6 = doc.addObject("PartDesign::Body", "Body005")

sketch8 = body6.newObject("Sketcher::SketchObject", "Sketch007")
sketch8.AttachmentSupport = (doc.getObject("XZ_Plane005"), [""])
sketch8.MapMode = "FlatFace"
sketch8.addGeometry(Part.LineSegment(App.Vector(11.3, 0.3, 0), App.Vector(11.3, -0.3, 0)), False)
sketch8.addGeometry(Part.LineSegment(App.Vector(11.3, -0.3, 0), App.Vector(11.8, -0.3, 0)), False)
sketch8.addGeometry(Part.LineSegment(App.Vector(11.8, -0.3, 0), App.Vector(11.8, 0.3, 0)), False)
sketch8.addGeometry(Part.LineSegment(App.Vector(11.8, 0.3, 0), App.Vector(11.3, 0.3, 0)), False)
sketch8.addConstraint(Sketcher.Constraint("Coincident", 0, 2, 1, 1))
sketch8.addConstraint(Sketcher.Constraint("Coincident", 1, 2, 2, 1))
sketch8.addConstraint(Sketcher.Constraint("Coincident", 2, 2, 3, 1))
sketch8.addConstraint(Sketcher.Constraint("Coincident", 3, 2, 0, 1))
sketch8.addConstraint(Sketcher.Constraint("Vertical", 0))
sketch8.addConstraint(Sketcher.Constraint("Horizontal", 1))
sketch8.addConstraint(Sketcher.Constraint("Vertical", 2))
sketch8.addConstraint(Sketcher.Constraint("Horizontal", 3))
sketch8.addConstraint(Sketcher.Constraint("Equal", 3, 0))
sketch8.addConstraint(Sketcher.Constraint("DistanceX", 1, 1, 1, 2, 0.55))
sketch8.addConstraint(Sketcher.Constraint("DistanceX", -1, 1, 0, 2, 11.285))
sketch8.addConstraint(Sketcher.Constraint("DistanceY", 0, 2, -1, 1, 0.275))
pad7 = body6.newObject("PartDesign::Pad", "Pad006")
pad7.Profile = sketch8
pad7.Length = 3
body7 = doc.addObject("PartDesign::Body", "Body006")

sketch9 = body7.newObject("Sketcher::SketchObject", "Sketch008")
sketch9.AttachmentSupport = (doc.getObject("XZ_Plane006"), [""])
sketch9.MapMode = "FlatFace"
sketch9.addGeometry(Part.LineSegment(App.Vector(13.8, 0.3, 0), App.Vector(13.8, -0.3, 0)), False)
sketch9.addGeometry(Part.LineSegment(App.Vector(13.8, -0.3, 0), App.Vector(14.4, -0.3, 0)), False)
sketch9.addGeometry(Part.LineSegment(App.Vector(14.4, -0.3, 0), App.Vector(14.4, 0.3, 0)), False)
sketch9.addGeometry(Part.LineSegment(App.Vector(14.4, 0.3, 0), App.Vector(13.8, 0.3, 0)), False)
sketch9.addConstraint(Sketcher.Constraint("Coincident", 0, 2, 1, 1))
sketch9.addConstraint(Sketcher.Constraint("Coincident", 1, 2, 2, 1))
sketch9.addConstraint(Sketcher.Constraint("Coincident", 2, 2, 3, 1))
sketch9.addConstraint(Sketcher.Constraint("Coincident", 3, 2, 0, 1))
sketch9.addConstraint(Sketcher.Constraint("Vertical", 0))
sketch9.addConstraint(Sketcher.Constraint("Horizontal", 1))
sketch9.addConstraint(Sketcher.Constraint("Vertical", 2))
sketch9.addConstraint(Sketcher.Constraint("Horizontal", 3))
sketch9.addConstraint(Sketcher.Constraint("Equal", 3, 0))
sketch9.addConstraint(Sketcher.Constraint("DistanceX", 1, 1, 1, 2, 0.55))
sketch9.addConstraint(Sketcher.Constraint("DistanceX", -1, 1, 0, 2, 13.825))
sketch9.addConstraint(Sketcher.Constraint("DistanceY", 0, 2, -1, 1, 0.275))
pad8 = body7.newObject("PartDesign::Pad", "Pad007")
pad8.Profile = sketch9
pad8.Length = 3
body8 = doc.addObject("PartDesign::Body", "Body007")

sketch10 = body8.newObject("Sketcher::SketchObject", "Sketch009")
sketch10.AttachmentSupport = (doc.getObject("XZ_Plane007"), [""])
sketch10.MapMode = "FlatFace"
sketch10.addGeometry(Part.LineSegment(App.Vector(16.4, 0.3, 0), App.Vector(16.4, -0.3, 0)), False)
sketch10.addGeometry(Part.LineSegment(App.Vector(16.4, -0.3, 0), App.Vector(16.9, -0.3, 0)), False)
sketch10.addGeometry(Part.LineSegment(App.Vector(16.9, -0.3, 0), App.Vector(16.9, 0.3, 0)), False)
sketch10.addGeometry(Part.LineSegment(App.Vector(16.9, 0.3, 0), App.Vector(16.4, 0.3, 0)), False)
sketch10.addConstraint(Sketcher.Constraint("Coincident", 0, 2, 1, 1))
sketch10.addConstraint(Sketcher.Constraint("Coincident", 1, 2, 2, 1))
sketch10.addConstraint(Sketcher.Constraint("Coincident", 2, 2, 3, 1))
sketch10.addConstraint(Sketcher.Constraint("Coincident", 3, 2, 0, 1))
sketch10.addConstraint(Sketcher.Constraint("Vertical", 0))
sketch10.addConstraint(Sketcher.Constraint("Horizontal", 1))
sketch10.addConstraint(Sketcher.Constraint("Vertical", 2))
sketch10.addConstraint(Sketcher.Constraint("Horizontal", 3))
sketch10.addConstraint(Sketcher.Constraint("Equal", 3, 0))
sketch10.addConstraint(Sketcher.Constraint("DistanceX", 1, 1, 1, 2, 0.55))
sketch10.addConstraint(Sketcher.Constraint("DistanceX", -1, 1, 0, 2, 16.365))
sketch10.addConstraint(Sketcher.Constraint("DistanceY", 0, 2, -1, 1, 0.275))
pad9 = body8.newObject("PartDesign::Pad", "Pad008")
pad9.Profile = sketch10
pad9.Length = 3
body9 = doc.addObject("PartDesign::Body", "Body008")

sketch11 = body9.newObject("Sketcher::SketchObject", "Sketch010")
sketch11.AttachmentSupport = (doc.getObject("XZ_Plane008"), [""])
sketch11.MapMode = "FlatFace"
sketch11.addGeometry(Part.LineSegment(App.Vector(18.9, 0.3, 0), App.Vector(18.9, -0.3, 0)), False)
sketch11.addGeometry(Part.LineSegment(App.Vector(18.9, -0.3, 0), App.Vector(19.5, -0.3, 0)), False)
sketch11.addGeometry(Part.LineSegment(App.Vector(19.5, -0.3, 0), App.Vector(19.5, 0.3, 0)), False)
sketch11.addGeometry(Part.LineSegment(App.Vector(19.5, 0.3, 0), App.Vector(18.9, 0.3, 0)), False)
sketch11.addConstraint(Sketcher.Constraint("Coincident", 0, 2, 1, 1))
sketch11.addConstraint(Sketcher.Constraint("Coincident", 1, 2, 2, 1))
sketch11.addConstraint(Sketcher.Constraint("Coincident", 2, 2, 3, 1))
sketch11.addConstraint(Sketcher.Constraint("Coincident", 3, 2, 0, 1))
sketch11.addConstraint(Sketcher.Constraint("Vertical", 0))
sketch11.addConstraint(Sketcher.Constraint("Horizontal", 1))
sketch11.addConstraint(Sketcher.Constraint("Vertical", 2))
sketch11.addConstraint(Sketcher.Constraint("Horizontal", 3))
sketch11.addConstraint(Sketcher.Constraint("Equal", 3, 0))
sketch11.addConstraint(Sketcher.Constraint("DistanceX", 1, 1, 1, 2, 0.55))
sketch11.addConstraint(Sketcher.Constraint("DistanceX", -1, 1, 0, 2, 18.905))
sketch11.addConstraint(Sketcher.Constraint("DistanceY", 0, 2, -1, 1, 0.275))
pad10 = body9.newObject("PartDesign::Pad", "Pad009")
pad10.Profile = sketch11
pad10.Length = 3
body10 = doc.addObject("PartDesign::Body", "Body009")

sketch12 = body10.newObject("Sketcher::SketchObject", "Sketch011")
sketch12.AttachmentSupport = (doc.getObject("XZ_Plane009"), [""])
sketch12.MapMode = "FlatFace"
sketch12.addGeometry(Part.LineSegment(App.Vector(21.4, 0.3, 0), App.Vector(21.4, -0.3, 0)), False)
sketch12.addGeometry(Part.LineSegment(App.Vector(21.4, -0.3, 0), App.Vector(22, -0.3, 0)), False)
sketch12.addGeometry(Part.LineSegment(App.Vector(22, -0.3, 0), App.Vector(22, 0.3, 0)), False)
sketch12.addGeometry(Part.LineSegment(App.Vector(22, 0.3, 0), App.Vector(21.4, 0.3, 0)), False)
sketch12.addConstraint(Sketcher.Constraint("Coincident", 0, 2, 1, 1))
sketch12.addConstraint(Sketcher.Constraint("Coincident", 1, 2, 2, 1))
sketch12.addConstraint(Sketcher.Constraint("Coincident", 2, 2, 3, 1))
sketch12.addConstraint(Sketcher.Constraint("Coincident", 3, 2, 0, 1))
sketch12.addConstraint(Sketcher.Constraint("Vertical", 0))
sketch12.addConstraint(Sketcher.Constraint("Horizontal", 1))
sketch12.addConstraint(Sketcher.Constraint("Vertical", 2))
sketch12.addConstraint(Sketcher.Constraint("Horizontal", 3))
sketch12.addConstraint(Sketcher.Constraint("Equal", 3, 0))
sketch12.addConstraint(Sketcher.Constraint("DistanceX", 1, 1, 1, 2, 0.55))
sketch12.addConstraint(Sketcher.Constraint("DistanceX", -1, 1, 0, 2, 21.445))
sketch12.addConstraint(Sketcher.Constraint("DistanceY", 0, 2, -1, 1, 0.275))
pad11 = body10.newObject("PartDesign::Pad", "Pad010")
pad11.Profile = sketch12
pad11.Length = 3
body11 = doc.addObject("PartDesign::Body", "Body010")

sketch13 = body11.newObject("Sketcher::SketchObject", "Sketch012")
sketch13.AttachmentSupport = (doc.getObject("XZ_Plane010"), [""])
sketch13.MapMode = "FlatFace"
sketch13.addGeometry(Part.LineSegment(App.Vector(24, 0.3, 0), App.Vector(24, -0.3, 0)), False)
sketch13.addGeometry(Part.LineSegment(App.Vector(24, -0.3, 0), App.Vector(24.5, -0.3, 0)), False)
sketch13.addGeometry(Part.LineSegment(App.Vector(24.5, -0.3, 0), App.Vector(24.5, 0.3, 0)), False)
sketch13.addGeometry(Part.LineSegment(App.Vector(24.5, 0.3, 0), App.Vector(24, 0.3, 0)), False)
sketch13.addConstraint(Sketcher.Constraint("Coincident", 0, 2, 1, 1))
sketch13.addConstraint(Sketcher.Constraint("Coincident", 1, 2, 2, 1))
sketch13.addConstraint(Sketcher.Constraint("Coincident", 2, 2, 3, 1))
sketch13.addConstraint(Sketcher.Constraint("Coincident", 3, 2, 0, 1))
sketch13.addConstraint(Sketcher.Constraint("Vertical", 0))
sketch13.addConstraint(Sketcher.Constraint("Horizontal", 1))
sketch13.addConstraint(Sketcher.Constraint("Vertical", 2))
sketch13.addConstraint(Sketcher.Constraint("Horizontal", 3))
sketch13.addConstraint(Sketcher.Constraint("Equal", 3, 0))
sketch13.addConstraint(Sketcher.Constraint("DistanceX", 1, 1, 1, 2, 0.55))
sketch13.addConstraint(Sketcher.Constraint("DistanceX", -1, 1, 0, 2, 23.985))
sketch13.addConstraint(Sketcher.Constraint("DistanceY", 0, 2, -1, 1, 0.275))
pad12 = body11.newObject("PartDesign::Pad", "Pad011")
pad12.Profile = sketch13
pad12.Length = 3
body12 = doc.addObject("PartDesign::Body", "Body011")

sketch14 = body12.newObject("Sketcher::SketchObject", "Sketch013")
sketch14.AttachmentSupport = (doc.getObject("XZ_Plane011"), [""])
sketch14.MapMode = "FlatFace"
sketch14.addGeometry(Part.LineSegment(App.Vector(26.5, 0.3, 0), App.Vector(26.5, -0.3, 0)), False)
sketch14.addGeometry(Part.LineSegment(App.Vector(26.5, -0.3, 0), App.Vector(27.1, -0.3, 0)), False)
sketch14.addGeometry(Part.LineSegment(App.Vector(27.1, -0.3, 0), App.Vector(27.1, 0.3, 0)), False)
sketch14.addGeometry(Part.LineSegment(App.Vector(27.1, 0.3, 0), App.Vector(26.5, 0.3, 0)), False)
sketch14.addConstraint(Sketcher.Constraint("Coincident", 0, 2, 1, 1))
sketch14.addConstraint(Sketcher.Constraint("Coincident", 1, 2, 2, 1))
sketch14.addConstraint(Sketcher.Constraint("Coincident", 2, 2, 3, 1))
sketch14.addConstraint(Sketcher.Constraint("Coincident", 3, 2, 0, 1))
sketch14.addConstraint(Sketcher.Constraint("Vertical", 0))
sketch14.addConstraint(Sketcher.Constraint("Horizontal", 1))
sketch14.addConstraint(Sketcher.Constraint("Vertical", 2))
sketch14.addConstraint(Sketcher.Constraint("Horizontal", 3))
sketch14.addConstraint(Sketcher.Constraint("Equal", 3, 0))
sketch14.addConstraint(Sketcher.Constraint("DistanceX", 1, 1, 1, 2, 0.55))
sketch14.addConstraint(Sketcher.Constraint("DistanceX", -1, 1, 0, 2, 26.525))
sketch14.addConstraint(Sketcher.Constraint("DistanceY", 0, 2, -1, 1, 0.275))
pad13 = body12.newObject("PartDesign::Pad", "Pad012")
pad13.Profile = sketch14
pad13.Length = 3
body13 = doc.addObject("PartDesign::Body", "Body012")

sketch15 = body13.newObject("Sketcher::SketchObject", "Sketch014")
sketch15.AttachmentSupport = (doc.getObject("XZ_Plane012"), [""])
sketch15.MapMode = "FlatFace"
sketch15.addGeometry(Part.LineSegment(App.Vector(29.1, 0.3, 0), App.Vector(29.1, -0.3, 0)), False)
sketch15.addGeometry(Part.LineSegment(App.Vector(29.1, -0.3, 0), App.Vector(29.6, -0.3, 0)), False)
sketch15.addGeometry(Part.LineSegment(App.Vector(29.6, -0.3, 0), App.Vector(29.6, 0.3, 0)), False)
sketch15.addGeometry(Part.LineSegment(App.Vector(29.6, 0.3, 0), App.Vector(29.1, 0.3, 0)), False)
sketch15.addConstraint(Sketcher.Constraint("Coincident", 0, 2, 1, 1))
sketch15.addConstraint(Sketcher.Constraint("Coincident", 1, 2, 2, 1))
sketch15.addConstraint(Sketcher.Constraint("Coincident", 2, 2, 3, 1))
sketch15.addConstraint(Sketcher.Constraint("Coincident", 3, 2, 0, 1))
sketch15.addConstraint(Sketcher.Constraint("Vertical", 0))
sketch15.addConstraint(Sketcher.Constraint("Horizontal", 1))
sketch15.addConstraint(Sketcher.Constraint("Vertical", 2))
sketch15.addConstraint(Sketcher.Constraint("Horizontal", 3))
sketch15.addConstraint(Sketcher.Constraint("Equal", 3, 0))
sketch15.addConstraint(Sketcher.Constraint("DistanceX", 1, 1, 1, 2, 0.55))
sketch15.addConstraint(Sketcher.Constraint("DistanceX", -1, 1, 0, 2, 29.065))
sketch15.addConstraint(Sketcher.Constraint("DistanceY", 0, 2, -1, 1, 0.275))
pad14 = body13.newObject("PartDesign::Pad", "Pad013")
pad14.Profile = sketch15
pad14.Length = 3
body14 = doc.addObject("PartDesign::Body", "Body013")

sketch16 = body14.newObject("Sketcher::SketchObject", "Sketch015")
sketch16.AttachmentSupport = (doc.getObject("XZ_Plane013"), [""])
sketch16.MapMode = "FlatFace"
sketch16.addGeometry(Part.LineSegment(App.Vector(31.6, 0.3, 0), App.Vector(31.6, -0.3, 0)), False)
sketch16.addGeometry(Part.LineSegment(App.Vector(31.6, -0.3, 0), App.Vector(32.2, -0.3, 0)), False)
sketch16.addGeometry(Part.LineSegment(App.Vector(32.2, -0.3, 0), App.Vector(32.2, 0.3, 0)), False)
sketch16.addGeometry(Part.LineSegment(App.Vector(32.2, 0.3, 0), App.Vector(31.6, 0.3, 0)), False)
sketch16.addConstraint(Sketcher.Constraint("Coincident", 0, 2, 1, 1))
sketch16.addConstraint(Sketcher.Constraint("Coincident", 1, 2, 2, 1))
sketch16.addConstraint(Sketcher.Constraint("Coincident", 2, 2, 3, 1))
sketch16.addConstraint(Sketcher.Constraint("Coincident", 3, 2, 0, 1))
sketch16.addConstraint(Sketcher.Constraint("Vertical", 0))
sketch16.addConstraint(Sketcher.Constraint("Horizontal", 1))
sketch16.addConstraint(Sketcher.Constraint("Vertical", 2))
sketch16.addConstraint(Sketcher.Constraint("Horizontal", 3))
sketch16.addConstraint(Sketcher.Constraint("Equal", 3, 0))
sketch16.addConstraint(Sketcher.Constraint("DistanceX", 1, 1, 1, 2, 0.55))
sketch16.addConstraint(Sketcher.Constraint("DistanceX", -1, 1, 0, 2, 31.605))
sketch16.addConstraint(Sketcher.Constraint("DistanceY", 0, 2, -1, 1, 0.275))
pad15 = body14.newObject("PartDesign::Pad", "Pad014")
pad15.Profile = sketch16
pad15.Length = 3
body15 = doc.addObject("PartDesign::Body", "Body014")

sketch17 = body15.newObject("Sketcher::SketchObject", "Sketch016")
sketch17.AttachmentSupport = (doc.getObject("XZ_Plane014"), [""])
sketch17.MapMode = "FlatFace"
sketch17.addGeometry(Part.LineSegment(App.Vector(34.1, 0.3, 0), App.Vector(34.1, -0.3, 0)), False)
sketch17.addGeometry(Part.LineSegment(App.Vector(34.1, -0.3, 0), App.Vector(34.7, -0.3, 0)), False)
sketch17.addGeometry(Part.LineSegment(App.Vector(34.7, -0.3, 0), App.Vector(34.7, 0.3, 0)), False)
sketch17.addGeometry(Part.LineSegment(App.Vector(34.7, 0.3, 0), App.Vector(34.1, 0.3, 0)), False)
sketch17.addConstraint(Sketcher.Constraint("Coincident", 0, 2, 1, 1))
sketch17.addConstraint(Sketcher.Constraint("Coincident", 1, 2, 2, 1))
sketch17.addConstraint(Sketcher.Constraint("Coincident", 2, 2, 3, 1))
sketch17.addConstraint(Sketcher.Constraint("Coincident", 3, 2, 0, 1))
sketch17.addConstraint(Sketcher.Constraint("Vertical", 0))
sketch17.addConstraint(Sketcher.Constraint("Horizontal", 1))
sketch17.addConstraint(Sketcher.Constraint("Vertical", 2))
sketch17.addConstraint(Sketcher.Constraint("Horizontal", 3))
sketch17.addConstraint(Sketcher.Constraint("Equal", 3, 0))
sketch17.addConstraint(Sketcher.Constraint("DistanceX", 1, 1, 1, 2, 0.55))
sketch17.addConstraint(Sketcher.Constraint("DistanceX", -1, 1, 0, 2, 34.145))
sketch17.addConstraint(Sketcher.Constraint("DistanceY", 0, 2, -1, 1, 0.275))
pad16 = body15.newObject("PartDesign::Pad", "Pad015")
pad16.Profile = sketch17
pad16.Length = 3
body16 = doc.addObject("PartDesign::Body", "Body015")

sketch18 = body16.newObject("Sketcher::SketchObject", "Sketch017")
sketch18.AttachmentSupport = (doc.getObject("XZ_Plane015"), [""])
sketch18.MapMode = "FlatFace"
sketch18.addGeometry(Part.LineSegment(App.Vector(36.7, 0.3, 0), App.Vector(36.7, -0.3, 0)), False)
sketch18.addGeometry(Part.LineSegment(App.Vector(36.7, -0.3, 0), App.Vector(37.2, -0.3, 0)), False)
sketch18.addGeometry(Part.LineSegment(App.Vector(37.2, -0.3, 0), App.Vector(37.2, 0.3, 0)), False)
sketch18.addGeometry(Part.LineSegment(App.Vector(37.2, 0.3, 0), App.Vector(36.7, 0.3, 0)), False)
sketch18.addConstraint(Sketcher.Constraint("Coincident", 0, 2, 1, 1))
sketch18.addConstraint(Sketcher.Constraint("Coincident", 1, 2, 2, 1))
sketch18.addConstraint(Sketcher.Constraint("Coincident", 2, 2, 3, 1))
sketch18.addConstraint(Sketcher.Constraint("Coincident", 3, 2, 0, 1))
sketch18.addConstraint(Sketcher.Constraint("Vertical", 0))
sketch18.addConstraint(Sketcher.Constraint("Horizontal", 1))
sketch18.addConstraint(Sketcher.Constraint("Vertical", 2))
sketch18.addConstraint(Sketcher.Constraint("Horizontal", 3))
sketch18.addConstraint(Sketcher.Constraint("Equal", 3, 0))
sketch18.addConstraint(Sketcher.Constraint("DistanceX", 1, 1, 1, 2, 0.55))
sketch18.addConstraint(Sketcher.Constraint("DistanceX", -1, 1, 0, 2, 36.685))
sketch18.addConstraint(Sketcher.Constraint("DistanceY", 0, 2, -1, 1, 0.275))
pad17 = body16.newObject("PartDesign::Pad", "Pad016")
pad17.Profile = sketch18
pad17.Length = 3
body17 = doc.addObject("PartDesign::Body", "Body016")

sketch19 = body17.newObject("Sketcher::SketchObject", "Sketch018")
sketch19.AttachmentSupport = (doc.getObject("XZ_Plane016"), [""])
sketch19.MapMode = "FlatFace"
sketch19.addGeometry(Part.LineSegment(App.Vector(39.2, 0.3, 0), App.Vector(39.2, -0.3, 0)), False)
sketch19.addGeometry(Part.LineSegment(App.Vector(39.2, -0.3, 0), App.Vector(39.8, -0.3, 0)), False)
sketch19.addGeometry(Part.LineSegment(App.Vector(39.8, -0.3, 0), App.Vector(39.8, 0.3, 0)), False)
sketch19.addGeometry(Part.LineSegment(App.Vector(39.8, 0.3, 0), App.Vector(39.2, 0.3, 0)), False)
sketch19.addConstraint(Sketcher.Constraint("Coincident", 0, 2, 1, 1))
sketch19.addConstraint(Sketcher.Constraint("Coincident", 1, 2, 2, 1))
sketch19.addConstraint(Sketcher.Constraint("Coincident", 2, 2, 3, 1))
sketch19.addConstraint(Sketcher.Constraint("Coincident", 3, 2, 0, 1))
sketch19.addConstraint(Sketcher.Constraint("Vertical", 0))
sketch19.addConstraint(Sketcher.Constraint("Horizontal", 1))
sketch19.addConstraint(Sketcher.Constraint("Vertical", 2))
sketch19.addConstraint(Sketcher.Constraint("Horizontal", 3))
sketch19.addConstraint(Sketcher.Constraint("Equal", 3, 0))
sketch19.addConstraint(Sketcher.Constraint("DistanceX", 1, 1, 1, 2, 0.55))
sketch19.addConstraint(Sketcher.Constraint("DistanceX", -1, 1, 0, 2, 39.225))
sketch19.addConstraint(Sketcher.Constraint("DistanceY", 0, 2, -1, 1, 0.275))
pad18 = body17.newObject("PartDesign::Pad", "Pad017")
pad18.Profile = sketch19
pad18.Length = 3

doc.recompute()
